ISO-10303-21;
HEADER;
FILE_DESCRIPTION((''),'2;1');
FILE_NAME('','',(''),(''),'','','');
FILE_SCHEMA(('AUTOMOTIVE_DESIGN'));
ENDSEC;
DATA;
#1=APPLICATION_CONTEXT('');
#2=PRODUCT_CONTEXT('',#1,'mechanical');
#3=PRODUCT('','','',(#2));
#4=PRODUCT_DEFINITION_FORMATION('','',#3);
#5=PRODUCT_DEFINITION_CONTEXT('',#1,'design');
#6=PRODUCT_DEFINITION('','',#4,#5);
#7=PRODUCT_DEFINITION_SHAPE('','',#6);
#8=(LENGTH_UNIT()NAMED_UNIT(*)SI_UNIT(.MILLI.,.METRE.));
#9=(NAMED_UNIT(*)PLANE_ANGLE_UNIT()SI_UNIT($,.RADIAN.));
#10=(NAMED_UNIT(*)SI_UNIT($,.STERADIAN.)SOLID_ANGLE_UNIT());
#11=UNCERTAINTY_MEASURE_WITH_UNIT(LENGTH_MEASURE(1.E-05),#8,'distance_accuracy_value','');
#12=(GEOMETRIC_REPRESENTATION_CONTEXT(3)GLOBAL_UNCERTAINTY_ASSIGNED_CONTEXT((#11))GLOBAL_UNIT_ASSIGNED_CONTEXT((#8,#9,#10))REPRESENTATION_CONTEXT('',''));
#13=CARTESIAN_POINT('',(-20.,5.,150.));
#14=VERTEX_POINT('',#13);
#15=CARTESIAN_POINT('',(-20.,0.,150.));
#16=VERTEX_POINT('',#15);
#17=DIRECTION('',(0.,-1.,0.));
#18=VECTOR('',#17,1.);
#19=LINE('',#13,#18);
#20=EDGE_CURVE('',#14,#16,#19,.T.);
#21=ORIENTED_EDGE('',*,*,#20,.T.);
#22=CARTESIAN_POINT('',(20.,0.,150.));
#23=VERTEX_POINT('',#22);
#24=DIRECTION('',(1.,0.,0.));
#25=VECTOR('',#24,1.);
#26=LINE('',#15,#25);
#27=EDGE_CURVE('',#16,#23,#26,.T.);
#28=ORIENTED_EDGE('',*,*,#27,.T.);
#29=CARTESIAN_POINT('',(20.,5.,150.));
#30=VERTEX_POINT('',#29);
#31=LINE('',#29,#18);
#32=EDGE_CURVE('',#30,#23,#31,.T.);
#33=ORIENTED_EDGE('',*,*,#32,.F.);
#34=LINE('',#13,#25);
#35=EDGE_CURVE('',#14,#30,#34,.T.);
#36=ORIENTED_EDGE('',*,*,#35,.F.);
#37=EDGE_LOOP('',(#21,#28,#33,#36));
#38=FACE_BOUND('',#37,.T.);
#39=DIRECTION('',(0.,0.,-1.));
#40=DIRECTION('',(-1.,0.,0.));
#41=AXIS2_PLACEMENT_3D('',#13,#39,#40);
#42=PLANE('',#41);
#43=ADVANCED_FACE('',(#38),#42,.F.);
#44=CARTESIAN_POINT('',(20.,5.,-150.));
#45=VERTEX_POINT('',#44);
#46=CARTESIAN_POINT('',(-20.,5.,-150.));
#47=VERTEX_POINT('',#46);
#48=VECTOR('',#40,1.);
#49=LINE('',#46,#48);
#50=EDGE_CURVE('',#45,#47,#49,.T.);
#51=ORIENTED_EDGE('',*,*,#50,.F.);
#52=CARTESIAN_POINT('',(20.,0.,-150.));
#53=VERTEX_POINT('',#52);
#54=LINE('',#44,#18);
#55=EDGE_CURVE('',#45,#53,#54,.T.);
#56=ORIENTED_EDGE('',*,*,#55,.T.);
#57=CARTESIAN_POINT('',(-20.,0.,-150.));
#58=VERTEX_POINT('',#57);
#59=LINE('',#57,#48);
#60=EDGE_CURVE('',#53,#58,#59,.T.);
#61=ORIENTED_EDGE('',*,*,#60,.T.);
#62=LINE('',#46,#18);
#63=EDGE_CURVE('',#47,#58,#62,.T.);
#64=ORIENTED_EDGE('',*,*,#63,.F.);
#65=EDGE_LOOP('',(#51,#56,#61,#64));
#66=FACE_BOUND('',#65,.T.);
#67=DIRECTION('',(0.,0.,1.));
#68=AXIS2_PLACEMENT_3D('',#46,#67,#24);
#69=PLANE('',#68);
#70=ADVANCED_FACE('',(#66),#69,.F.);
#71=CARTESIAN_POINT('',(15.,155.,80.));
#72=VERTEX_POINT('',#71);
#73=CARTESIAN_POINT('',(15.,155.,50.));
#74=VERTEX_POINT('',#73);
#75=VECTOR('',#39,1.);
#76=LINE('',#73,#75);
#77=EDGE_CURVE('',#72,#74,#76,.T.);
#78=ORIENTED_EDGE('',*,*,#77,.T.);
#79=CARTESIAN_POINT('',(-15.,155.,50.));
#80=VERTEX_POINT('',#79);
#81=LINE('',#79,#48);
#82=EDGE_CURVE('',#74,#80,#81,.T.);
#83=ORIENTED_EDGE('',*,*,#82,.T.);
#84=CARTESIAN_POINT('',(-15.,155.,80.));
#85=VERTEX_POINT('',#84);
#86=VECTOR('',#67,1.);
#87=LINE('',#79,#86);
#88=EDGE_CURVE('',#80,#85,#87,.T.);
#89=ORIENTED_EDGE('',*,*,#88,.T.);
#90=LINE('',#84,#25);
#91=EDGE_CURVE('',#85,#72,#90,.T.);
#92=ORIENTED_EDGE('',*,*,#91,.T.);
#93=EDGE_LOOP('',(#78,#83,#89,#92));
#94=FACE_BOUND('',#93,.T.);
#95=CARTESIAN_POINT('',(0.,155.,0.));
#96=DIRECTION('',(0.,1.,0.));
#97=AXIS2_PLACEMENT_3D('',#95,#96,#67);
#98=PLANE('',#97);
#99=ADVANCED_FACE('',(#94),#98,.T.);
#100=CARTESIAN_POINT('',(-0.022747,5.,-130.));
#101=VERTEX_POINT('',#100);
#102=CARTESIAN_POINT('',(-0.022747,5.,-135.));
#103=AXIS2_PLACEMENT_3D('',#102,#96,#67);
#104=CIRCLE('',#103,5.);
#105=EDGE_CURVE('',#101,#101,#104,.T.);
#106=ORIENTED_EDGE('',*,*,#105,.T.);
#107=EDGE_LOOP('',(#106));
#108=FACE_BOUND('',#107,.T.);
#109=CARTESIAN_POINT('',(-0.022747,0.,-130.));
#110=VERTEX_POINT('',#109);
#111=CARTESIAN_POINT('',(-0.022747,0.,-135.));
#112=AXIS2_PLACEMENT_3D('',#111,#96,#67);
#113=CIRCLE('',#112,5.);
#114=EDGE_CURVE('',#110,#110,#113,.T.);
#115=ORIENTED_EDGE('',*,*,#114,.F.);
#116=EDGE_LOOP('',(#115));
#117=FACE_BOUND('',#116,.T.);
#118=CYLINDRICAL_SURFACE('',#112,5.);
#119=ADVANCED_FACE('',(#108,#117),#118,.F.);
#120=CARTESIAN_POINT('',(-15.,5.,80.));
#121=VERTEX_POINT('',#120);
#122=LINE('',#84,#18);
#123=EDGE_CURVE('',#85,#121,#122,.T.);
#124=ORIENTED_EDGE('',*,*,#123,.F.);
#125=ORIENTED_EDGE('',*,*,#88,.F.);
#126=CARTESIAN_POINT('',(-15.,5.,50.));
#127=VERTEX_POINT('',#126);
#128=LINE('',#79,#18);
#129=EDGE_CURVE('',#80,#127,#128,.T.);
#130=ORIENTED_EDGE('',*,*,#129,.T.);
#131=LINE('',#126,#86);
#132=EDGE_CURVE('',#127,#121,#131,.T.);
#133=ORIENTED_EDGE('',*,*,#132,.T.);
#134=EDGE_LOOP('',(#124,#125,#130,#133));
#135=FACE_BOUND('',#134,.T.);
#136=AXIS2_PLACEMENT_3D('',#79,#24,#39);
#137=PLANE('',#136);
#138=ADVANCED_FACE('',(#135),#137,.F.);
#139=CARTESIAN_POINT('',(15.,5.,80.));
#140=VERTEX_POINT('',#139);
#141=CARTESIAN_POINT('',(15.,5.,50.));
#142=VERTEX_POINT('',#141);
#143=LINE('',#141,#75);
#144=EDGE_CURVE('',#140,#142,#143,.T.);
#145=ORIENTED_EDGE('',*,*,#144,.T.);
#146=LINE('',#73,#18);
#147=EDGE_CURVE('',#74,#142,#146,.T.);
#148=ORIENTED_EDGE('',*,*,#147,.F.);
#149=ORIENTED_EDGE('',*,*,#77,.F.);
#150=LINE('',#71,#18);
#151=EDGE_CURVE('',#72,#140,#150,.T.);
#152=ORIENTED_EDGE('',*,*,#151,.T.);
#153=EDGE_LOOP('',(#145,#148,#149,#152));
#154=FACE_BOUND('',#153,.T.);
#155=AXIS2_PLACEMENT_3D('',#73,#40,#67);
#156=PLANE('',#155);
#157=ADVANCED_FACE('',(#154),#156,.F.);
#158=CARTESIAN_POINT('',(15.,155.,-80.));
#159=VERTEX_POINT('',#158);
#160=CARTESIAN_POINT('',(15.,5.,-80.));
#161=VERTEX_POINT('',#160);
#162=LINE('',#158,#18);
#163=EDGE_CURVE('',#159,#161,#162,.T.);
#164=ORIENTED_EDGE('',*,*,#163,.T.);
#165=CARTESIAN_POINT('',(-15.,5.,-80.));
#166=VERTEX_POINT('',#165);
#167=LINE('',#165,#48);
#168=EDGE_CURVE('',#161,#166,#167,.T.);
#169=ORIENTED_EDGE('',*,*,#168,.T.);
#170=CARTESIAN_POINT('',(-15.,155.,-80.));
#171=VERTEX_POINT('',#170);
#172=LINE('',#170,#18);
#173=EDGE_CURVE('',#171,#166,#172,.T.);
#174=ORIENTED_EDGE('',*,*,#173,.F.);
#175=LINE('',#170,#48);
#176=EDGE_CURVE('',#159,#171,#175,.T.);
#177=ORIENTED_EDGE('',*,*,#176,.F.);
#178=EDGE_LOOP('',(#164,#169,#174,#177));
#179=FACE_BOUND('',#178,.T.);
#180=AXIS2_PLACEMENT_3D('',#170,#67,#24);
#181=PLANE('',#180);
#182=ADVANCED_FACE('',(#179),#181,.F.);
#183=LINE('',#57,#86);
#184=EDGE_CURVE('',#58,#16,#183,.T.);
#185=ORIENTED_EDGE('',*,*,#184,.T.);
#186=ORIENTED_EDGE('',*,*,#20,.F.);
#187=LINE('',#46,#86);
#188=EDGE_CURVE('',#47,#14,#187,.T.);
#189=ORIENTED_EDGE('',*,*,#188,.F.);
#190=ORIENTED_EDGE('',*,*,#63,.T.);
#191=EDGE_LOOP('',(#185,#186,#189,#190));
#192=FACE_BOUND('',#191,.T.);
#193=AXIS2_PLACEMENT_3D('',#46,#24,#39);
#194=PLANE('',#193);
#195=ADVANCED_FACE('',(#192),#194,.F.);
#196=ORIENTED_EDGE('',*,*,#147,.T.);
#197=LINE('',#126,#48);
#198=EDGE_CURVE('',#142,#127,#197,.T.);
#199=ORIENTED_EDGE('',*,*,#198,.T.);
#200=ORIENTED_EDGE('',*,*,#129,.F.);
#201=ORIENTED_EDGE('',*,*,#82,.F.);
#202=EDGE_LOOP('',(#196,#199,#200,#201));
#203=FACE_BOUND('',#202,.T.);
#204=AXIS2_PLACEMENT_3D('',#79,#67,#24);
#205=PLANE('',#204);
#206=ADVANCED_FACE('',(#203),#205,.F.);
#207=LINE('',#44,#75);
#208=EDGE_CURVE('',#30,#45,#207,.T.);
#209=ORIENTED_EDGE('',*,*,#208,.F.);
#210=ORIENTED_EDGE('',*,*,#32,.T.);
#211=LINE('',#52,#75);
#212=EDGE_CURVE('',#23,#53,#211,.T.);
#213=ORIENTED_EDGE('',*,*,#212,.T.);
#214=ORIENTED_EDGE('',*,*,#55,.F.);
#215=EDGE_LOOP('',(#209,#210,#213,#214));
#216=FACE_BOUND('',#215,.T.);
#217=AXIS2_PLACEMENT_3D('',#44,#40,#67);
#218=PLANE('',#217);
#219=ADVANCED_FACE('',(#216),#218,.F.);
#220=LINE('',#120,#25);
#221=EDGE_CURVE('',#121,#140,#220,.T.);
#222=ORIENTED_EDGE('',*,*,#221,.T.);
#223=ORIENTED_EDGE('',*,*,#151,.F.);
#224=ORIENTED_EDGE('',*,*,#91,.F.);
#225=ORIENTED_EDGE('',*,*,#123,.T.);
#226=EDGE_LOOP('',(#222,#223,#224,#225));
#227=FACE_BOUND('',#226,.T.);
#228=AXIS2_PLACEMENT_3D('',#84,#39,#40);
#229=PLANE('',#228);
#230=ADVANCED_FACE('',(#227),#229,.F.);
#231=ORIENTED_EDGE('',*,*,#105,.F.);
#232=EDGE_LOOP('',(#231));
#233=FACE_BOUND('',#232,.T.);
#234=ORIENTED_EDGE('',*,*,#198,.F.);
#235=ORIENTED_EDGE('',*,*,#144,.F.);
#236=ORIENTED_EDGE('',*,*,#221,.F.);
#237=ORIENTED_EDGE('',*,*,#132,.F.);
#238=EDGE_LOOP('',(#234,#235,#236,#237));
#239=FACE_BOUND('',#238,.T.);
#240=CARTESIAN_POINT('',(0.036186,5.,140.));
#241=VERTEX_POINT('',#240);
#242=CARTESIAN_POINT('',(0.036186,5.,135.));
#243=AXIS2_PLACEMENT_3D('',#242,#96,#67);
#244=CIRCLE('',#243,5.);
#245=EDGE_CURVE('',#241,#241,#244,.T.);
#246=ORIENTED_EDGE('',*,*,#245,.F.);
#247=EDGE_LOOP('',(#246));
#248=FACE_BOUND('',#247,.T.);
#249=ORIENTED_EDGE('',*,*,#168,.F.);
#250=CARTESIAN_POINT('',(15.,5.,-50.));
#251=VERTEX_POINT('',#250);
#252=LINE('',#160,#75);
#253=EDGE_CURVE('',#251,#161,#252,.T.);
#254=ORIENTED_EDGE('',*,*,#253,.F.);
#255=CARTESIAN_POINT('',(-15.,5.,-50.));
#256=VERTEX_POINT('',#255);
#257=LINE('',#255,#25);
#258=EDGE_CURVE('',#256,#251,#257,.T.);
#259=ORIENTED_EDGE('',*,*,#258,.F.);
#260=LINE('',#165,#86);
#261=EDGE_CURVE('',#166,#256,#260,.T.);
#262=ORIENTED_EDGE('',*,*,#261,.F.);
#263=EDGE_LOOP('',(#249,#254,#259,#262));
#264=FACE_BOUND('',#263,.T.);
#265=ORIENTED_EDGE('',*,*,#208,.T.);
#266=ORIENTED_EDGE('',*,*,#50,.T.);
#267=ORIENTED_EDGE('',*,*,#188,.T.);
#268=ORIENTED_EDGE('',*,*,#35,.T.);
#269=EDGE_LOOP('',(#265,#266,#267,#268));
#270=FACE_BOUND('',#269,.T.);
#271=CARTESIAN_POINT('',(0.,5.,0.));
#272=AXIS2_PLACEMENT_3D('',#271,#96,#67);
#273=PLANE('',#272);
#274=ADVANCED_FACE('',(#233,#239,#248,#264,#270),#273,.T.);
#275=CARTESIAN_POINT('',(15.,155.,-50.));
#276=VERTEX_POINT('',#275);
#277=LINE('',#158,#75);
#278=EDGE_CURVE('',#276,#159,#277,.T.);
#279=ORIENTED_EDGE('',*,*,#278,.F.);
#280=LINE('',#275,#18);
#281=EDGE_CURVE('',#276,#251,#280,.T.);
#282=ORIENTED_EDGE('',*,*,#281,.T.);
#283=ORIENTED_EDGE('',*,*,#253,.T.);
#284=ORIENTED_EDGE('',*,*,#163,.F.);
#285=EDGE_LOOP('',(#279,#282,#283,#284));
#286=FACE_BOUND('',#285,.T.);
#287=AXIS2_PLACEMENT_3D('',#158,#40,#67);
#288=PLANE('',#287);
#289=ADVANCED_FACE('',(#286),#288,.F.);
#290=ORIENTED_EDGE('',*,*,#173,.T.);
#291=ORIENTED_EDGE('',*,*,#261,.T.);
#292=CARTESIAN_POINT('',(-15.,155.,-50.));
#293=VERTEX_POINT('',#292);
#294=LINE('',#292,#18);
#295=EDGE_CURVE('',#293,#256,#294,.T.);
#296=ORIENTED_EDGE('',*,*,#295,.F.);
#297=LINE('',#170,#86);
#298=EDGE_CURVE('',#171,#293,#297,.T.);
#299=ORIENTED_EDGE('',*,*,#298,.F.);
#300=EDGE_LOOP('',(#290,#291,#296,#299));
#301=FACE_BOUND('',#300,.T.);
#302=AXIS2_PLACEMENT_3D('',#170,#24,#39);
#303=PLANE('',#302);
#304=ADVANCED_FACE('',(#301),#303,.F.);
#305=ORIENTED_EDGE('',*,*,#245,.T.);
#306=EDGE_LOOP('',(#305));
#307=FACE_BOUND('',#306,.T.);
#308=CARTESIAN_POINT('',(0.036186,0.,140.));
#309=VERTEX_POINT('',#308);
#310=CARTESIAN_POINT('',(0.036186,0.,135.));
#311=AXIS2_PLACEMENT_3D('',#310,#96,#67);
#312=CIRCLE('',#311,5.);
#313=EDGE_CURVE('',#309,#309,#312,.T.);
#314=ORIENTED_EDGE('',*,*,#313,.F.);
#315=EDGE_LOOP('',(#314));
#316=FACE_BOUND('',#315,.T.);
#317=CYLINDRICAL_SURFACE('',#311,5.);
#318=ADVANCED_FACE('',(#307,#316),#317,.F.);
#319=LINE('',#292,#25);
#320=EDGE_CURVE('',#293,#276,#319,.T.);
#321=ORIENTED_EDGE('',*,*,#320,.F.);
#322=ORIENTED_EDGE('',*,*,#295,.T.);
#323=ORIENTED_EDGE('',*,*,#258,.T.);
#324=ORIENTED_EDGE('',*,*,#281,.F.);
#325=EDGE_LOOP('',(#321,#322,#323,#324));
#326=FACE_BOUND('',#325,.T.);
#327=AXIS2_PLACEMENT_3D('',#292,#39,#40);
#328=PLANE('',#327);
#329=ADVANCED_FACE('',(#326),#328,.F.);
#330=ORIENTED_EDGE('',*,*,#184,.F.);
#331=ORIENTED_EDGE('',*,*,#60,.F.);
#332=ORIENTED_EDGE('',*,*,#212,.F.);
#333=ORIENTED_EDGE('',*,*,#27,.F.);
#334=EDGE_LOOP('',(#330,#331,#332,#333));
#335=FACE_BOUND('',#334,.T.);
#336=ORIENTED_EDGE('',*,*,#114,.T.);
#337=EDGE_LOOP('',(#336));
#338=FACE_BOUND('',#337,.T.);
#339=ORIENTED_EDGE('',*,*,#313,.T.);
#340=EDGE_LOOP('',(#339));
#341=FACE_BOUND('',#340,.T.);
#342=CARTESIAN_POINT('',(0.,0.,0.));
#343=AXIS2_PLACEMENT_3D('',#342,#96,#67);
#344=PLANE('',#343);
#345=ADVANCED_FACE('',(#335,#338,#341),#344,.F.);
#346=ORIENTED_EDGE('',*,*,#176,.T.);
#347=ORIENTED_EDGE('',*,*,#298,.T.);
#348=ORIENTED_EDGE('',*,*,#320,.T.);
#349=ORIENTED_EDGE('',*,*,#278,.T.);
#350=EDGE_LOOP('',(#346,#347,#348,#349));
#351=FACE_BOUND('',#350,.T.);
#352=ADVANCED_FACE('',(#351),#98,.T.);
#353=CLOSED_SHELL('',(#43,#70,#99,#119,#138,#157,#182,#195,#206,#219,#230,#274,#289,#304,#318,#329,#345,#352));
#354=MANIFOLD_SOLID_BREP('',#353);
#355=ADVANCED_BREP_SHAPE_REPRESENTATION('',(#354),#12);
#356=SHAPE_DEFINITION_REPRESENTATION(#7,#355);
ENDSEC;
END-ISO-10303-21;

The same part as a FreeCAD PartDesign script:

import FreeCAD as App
import Part
import Sketcher
from FreeCAD import Vector
Q = App.Units.Quantity


def add_polygon(sketch, points):
    """Adds a closed chain of lines whose ends are joined by coincident constraints."""
    first, n = sketch.GeometryCount, len(points)
    for a, b in zip(points, points[1:] + points[:1]):
        sketch.addGeometry(Part.LineSegment(App.Vector(*a, 0), App.Vector(*b, 0)), False)
    for i in range(n):
        sketch.addConstraint(Sketcher.Constraint("Coincident", first + i, 2, first + (i + 1) % n, 1))

doc = App.newDocument("Part")
body = doc.addObject("PartDesign::Body", "Body")

# Sketch on XZ plane
sketch1 = body.newObject("Sketcher::SketchObject", "Sketch")
sketch1.AttachmentSupport = (doc.getObject("XZ_Plane"), [""])
sketch1.MapMode = "FlatFace"
add_polygon(sketch1, [(-20, -150), (-20, 150), (20, 150), (20, -150)])  # lines 0-3
sketch1.addConstraint(Sketcher.Constraint("Vertical", 0))
sketch1.addConstraint(Sketcher.Constraint("Horizontal", 1))
sketch1.addConstraint(Sketcher.Constraint("Vertical", 2))
sketch1.addConstraint(Sketcher.Constraint("Horizontal", 3))
sketch1.addConstraint(Sketcher.Constraint("Symmetric", 0, 2, 2, 2, -1, 1))
sketch1.addConstraint(Sketcher.Constraint("DistanceX", 1, 1, 1, 2, Q("40 mm")))
sketch1.addConstraint(Sketcher.Constraint("DistanceY", 0, 1, 0, 2, Q("300 mm")))
pad1 = body.newObject("PartDesign::Pad", "Pad")
pad1.Profile = sketch1
pad1.Length = 5
pad1.Reversed = True

# Sketch on XZ plane
sketch2 = body.newObject("Sketcher::SketchObject", "Sketch001")
sketch2.AttachmentSupport = (doc.getObject("XZ_Plane"), [""])
sketch2.MapMode = "FlatFace"
sketch2.AttachmentOffset = App.Placement(Vector(0, 0, -5), App.Rotation())
add_polygon(sketch2, [(-15, -80), (-15, -50), (15, -50), (15, -80)])  # lines 0-3
add_polygon(sketch2, [(-15, 50), (-15, 80), (15, 80), (15, 50)])  # lines 4-7
sketch2.addConstraint(Sketcher.Constraint("Vertical", 0))
sketch2.addConstraint(Sketcher.Constraint("Horizontal", 1))
sketch2.addConstraint(Sketcher.Constraint("Vertical", 2))
sketch2.addConstraint(Sketcher.Constraint("Horizontal", 3))
sketch2.addConstraint(Sketcher.Constraint("Vertical", 4))
sketch2.addConstraint(Sketcher.Constraint("Horizontal", 5))
sketch2.addConstraint(Sketcher.Constraint("Vertical", 6))
sketch2.addConstraint(Sketcher.Constraint("Horizontal", 7))
sketch2.addConstraint(Sketcher.Constraint("Symmetric", 2, 2, 4, 2, -1, 1))
sketch2.addConstraint(Sketcher.Constraint("Symmetric", 0, 2, 6, 2, -1, 1))
sketch2.addConstraint(Sketcher.Constraint("Vertical", 3, 2, 4, 2))
sketch2.addConstraint(Sketcher.Constraint("Equal", 7, 0))
sketch2.addConstraint(Sketcher.Constraint("DistanceX", 1, 1, 1, 2, Q("30 mm")))
sketch2.addConstraint(Sketcher.Constraint("DistanceY", 0, 2, -1, 1, Q("50 mm")))
pad2 = body.newObject("PartDesign::Pad", "Pad001")
pad2.Profile = sketch2
pad2.Length = 150
pad2.Reversed = True

# Sketch on XZ plane
sketch3 = body.newObject("Sketcher::SketchObject", "Sketch002")
sketch3.AttachmentSupport = (doc.getObject("XZ_Plane"), [""])
sketch3.MapMode = "FlatFace"
sketch3.AttachmentOffset = App.Placement(Vector(0, 0, -5), App.Rotation())
sketch3.addGeometry(Part.Circle(Vector(0, -135, 0), Vector(0, 0, 1), 5), False)
sketch3.addConstraint(Sketcher.Constraint("Diameter", 0, Q("10 mm")))
sketch3.addConstraint(Sketcher.Constraint("DistanceY", 0, 3, -1, 1, Q("135 mm")))
sketch3.addConstraint(Sketcher.Constraint("DistanceX", 0, 3, -1, 1, Q("0.022747 mm")))
pocket1 = body.newObject("PartDesign::Pocket", "Pocket")
pocket1.Profile = sketch3
pocket1.Length = 5
pocket1.Reversed = True

# Sketch on XZ plane
sketch4 = body.newObject("Sketcher::SketchObject", "Sketch003")
sketch4.AttachmentSupport = (doc.getObject("XZ_Plane"), [""])
sketch4.MapMode = "FlatFace"
sketch4.AttachmentOffset = App.Placement(Vector(0, 0, -5), App.Rotation())
sketch4.addGeometry(Part.Circle(Vector(0, 135, 0), Vector(0, 0, 1), 5), False)
sketch4.addConstraint(Sketcher.Constraint("Diameter", 0, Q("10 mm")))
sketch4.addConstraint(Sketcher.Constraint("DistanceY", -1, 1, 0, 3, Q("135 mm")))
sketch4.addConstraint(Sketcher.Constraint("DistanceX", -1, 1, 0, 3, Q("0.036186 mm")))
pocket2 = body.newObject("PartDesign::Pocket", "Pocket001")
pocket2.Profile = sketch4
pocket2.Length = 5
pocket2.Reversed = True

doc.recompute()
